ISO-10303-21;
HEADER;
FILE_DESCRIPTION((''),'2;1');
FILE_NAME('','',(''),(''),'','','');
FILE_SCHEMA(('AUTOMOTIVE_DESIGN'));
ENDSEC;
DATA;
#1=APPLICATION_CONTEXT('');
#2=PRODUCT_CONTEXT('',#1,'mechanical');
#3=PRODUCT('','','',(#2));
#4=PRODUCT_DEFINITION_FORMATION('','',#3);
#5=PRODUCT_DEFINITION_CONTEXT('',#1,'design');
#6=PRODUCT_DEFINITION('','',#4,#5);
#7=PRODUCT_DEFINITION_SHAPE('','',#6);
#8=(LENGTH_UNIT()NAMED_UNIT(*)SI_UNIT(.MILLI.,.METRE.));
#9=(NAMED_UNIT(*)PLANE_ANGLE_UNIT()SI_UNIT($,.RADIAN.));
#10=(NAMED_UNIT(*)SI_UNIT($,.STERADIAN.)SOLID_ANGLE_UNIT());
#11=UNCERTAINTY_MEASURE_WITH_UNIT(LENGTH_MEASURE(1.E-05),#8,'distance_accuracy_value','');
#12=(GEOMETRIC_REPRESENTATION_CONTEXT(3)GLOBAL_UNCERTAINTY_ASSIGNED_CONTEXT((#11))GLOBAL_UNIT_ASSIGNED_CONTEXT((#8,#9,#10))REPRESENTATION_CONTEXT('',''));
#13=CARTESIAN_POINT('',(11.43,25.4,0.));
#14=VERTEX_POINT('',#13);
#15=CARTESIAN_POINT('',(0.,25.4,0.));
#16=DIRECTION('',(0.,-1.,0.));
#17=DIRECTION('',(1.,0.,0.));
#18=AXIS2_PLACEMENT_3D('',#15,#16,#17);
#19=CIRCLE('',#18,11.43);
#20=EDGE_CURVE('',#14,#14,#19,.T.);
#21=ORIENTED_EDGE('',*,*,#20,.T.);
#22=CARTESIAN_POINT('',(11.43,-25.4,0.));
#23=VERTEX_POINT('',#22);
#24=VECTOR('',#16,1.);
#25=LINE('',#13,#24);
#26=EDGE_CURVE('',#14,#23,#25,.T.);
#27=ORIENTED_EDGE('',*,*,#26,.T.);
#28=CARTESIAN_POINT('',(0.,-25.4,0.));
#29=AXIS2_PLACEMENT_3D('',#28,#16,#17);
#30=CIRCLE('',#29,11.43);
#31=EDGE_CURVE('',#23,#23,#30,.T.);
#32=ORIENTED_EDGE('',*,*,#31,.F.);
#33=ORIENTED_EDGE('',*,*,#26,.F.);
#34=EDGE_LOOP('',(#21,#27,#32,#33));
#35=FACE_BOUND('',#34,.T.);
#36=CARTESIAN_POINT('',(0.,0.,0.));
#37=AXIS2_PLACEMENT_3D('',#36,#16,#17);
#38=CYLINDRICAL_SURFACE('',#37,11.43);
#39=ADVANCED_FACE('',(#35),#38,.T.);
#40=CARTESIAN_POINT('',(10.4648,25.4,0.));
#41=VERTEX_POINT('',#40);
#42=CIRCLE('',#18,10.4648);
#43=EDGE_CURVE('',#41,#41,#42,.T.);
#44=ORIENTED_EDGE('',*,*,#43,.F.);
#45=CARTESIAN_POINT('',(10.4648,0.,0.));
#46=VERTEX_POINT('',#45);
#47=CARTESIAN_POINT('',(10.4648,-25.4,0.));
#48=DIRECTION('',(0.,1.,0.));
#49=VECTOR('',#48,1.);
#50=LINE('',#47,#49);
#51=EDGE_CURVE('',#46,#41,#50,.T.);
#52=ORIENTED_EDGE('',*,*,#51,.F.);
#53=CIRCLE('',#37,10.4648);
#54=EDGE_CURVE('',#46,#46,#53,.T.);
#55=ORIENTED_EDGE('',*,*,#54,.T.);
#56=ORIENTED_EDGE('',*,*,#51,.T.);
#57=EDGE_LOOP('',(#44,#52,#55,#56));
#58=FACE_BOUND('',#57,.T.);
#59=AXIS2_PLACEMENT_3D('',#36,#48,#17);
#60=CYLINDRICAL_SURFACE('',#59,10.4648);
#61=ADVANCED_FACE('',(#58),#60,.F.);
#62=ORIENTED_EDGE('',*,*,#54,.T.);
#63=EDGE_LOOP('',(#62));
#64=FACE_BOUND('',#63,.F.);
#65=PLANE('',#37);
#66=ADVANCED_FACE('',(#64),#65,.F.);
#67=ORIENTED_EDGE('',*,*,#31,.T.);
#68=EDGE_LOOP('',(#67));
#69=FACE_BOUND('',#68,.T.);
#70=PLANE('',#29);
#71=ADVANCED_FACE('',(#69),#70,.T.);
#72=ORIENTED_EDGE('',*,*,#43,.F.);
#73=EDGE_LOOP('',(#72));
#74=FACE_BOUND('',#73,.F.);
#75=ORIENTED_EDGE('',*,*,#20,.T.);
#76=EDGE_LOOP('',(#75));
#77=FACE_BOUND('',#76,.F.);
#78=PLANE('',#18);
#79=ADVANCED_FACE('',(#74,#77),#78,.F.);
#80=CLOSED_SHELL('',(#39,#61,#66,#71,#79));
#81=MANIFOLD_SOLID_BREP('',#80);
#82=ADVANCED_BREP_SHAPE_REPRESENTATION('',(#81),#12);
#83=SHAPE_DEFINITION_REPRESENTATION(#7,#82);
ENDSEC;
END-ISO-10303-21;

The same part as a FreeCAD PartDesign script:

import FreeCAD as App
import Part
import Sketcher
Q = App.Units.Quantity

doc = App.newDocument("Part")
params = doc.addObject("Spreadsheet::Sheet", "Params")
for row, (alias, value) in enumerate([
    ("sketch1_diameter", "0.9 in"),
    ("sketch1_diameter2", "0.824 in"),
    ("pad1_length", "2 in"),
    ("sketch2_diameter", "0.824 in"),
    ("pad2_length", "1 in"),
], start=1):
    params.set(f"A{row}", alias)
    params.set(f"B{row}", "=" + value)
    params.setAlias(f"B{row}", alias)

body = doc.addObject("PartDesign::Body", "Body")

# Sketch on XZ plane
sketch1 = body.newObject("Sketcher::SketchObject", "Sketch")
sketch1.AttachmentSupport = (doc.getObject("XZ_Plane"), [""])
sketch1.MapMode = "FlatFace"
sketch1.addGeometry([
    Part.Circle(App.Vector(0, 0, 0), App.Vector(0, 0, 1), 11),
    Part.Circle(App.Vector(0, 0, 0), App.Vector(0, 0, 1), 10),
], False)
sketch1.addConstraint([
    Sketcher.Constraint("Coincident", 0, 3, -1, 1),
    Sketcher.Constraint("Coincident", 1, 3, -1, 1),
    Sketcher.Constraint("Diameter", 0, Q("0.9 in")),
    Sketcher.Constraint("Diameter", 1, Q("0.824 in")),
])
sketch1.setExpression("Constraints[2]", "Params.sketch1_diameter")
sketch1.setExpression("Constraints[3]", "Params.sketch1_diameter2")
pad1 = body.newObject("PartDesign::Pad", "Pad")
pad1.Profile = sketch1
pad1.setExpression("Length", "Params.pad1_length")
pad1.Midplane = True

# Sketch on XZ plane
sketch2 = body.newObject("Sketcher::SketchObject", "Sketch001")
sketch2.AttachmentSupport = (doc.getObject("XZ_Plane"), [""])
sketch2.MapMode = "FlatFace"
sketch2.addGeometry(Part.Circle(App.Vector(0, 0, 0), App.Vector(0, 0, 1), 10), False)
sketch2.addConstraint([
    Sketcher.Constraint("Coincident", 0, 3, -1, 1),
    Sketcher.Constraint("Diameter", 0, Q("0.824 in")),
])
sketch2.setExpression("Constraints[1]", "Params.sketch2_diameter")
pad2 = body.newObject("PartDesign::Pad", "Pad001")
pad2.Profile = sketch2
pad2.setExpression("Length", "Params.pad2_length")

doc.recompute()
